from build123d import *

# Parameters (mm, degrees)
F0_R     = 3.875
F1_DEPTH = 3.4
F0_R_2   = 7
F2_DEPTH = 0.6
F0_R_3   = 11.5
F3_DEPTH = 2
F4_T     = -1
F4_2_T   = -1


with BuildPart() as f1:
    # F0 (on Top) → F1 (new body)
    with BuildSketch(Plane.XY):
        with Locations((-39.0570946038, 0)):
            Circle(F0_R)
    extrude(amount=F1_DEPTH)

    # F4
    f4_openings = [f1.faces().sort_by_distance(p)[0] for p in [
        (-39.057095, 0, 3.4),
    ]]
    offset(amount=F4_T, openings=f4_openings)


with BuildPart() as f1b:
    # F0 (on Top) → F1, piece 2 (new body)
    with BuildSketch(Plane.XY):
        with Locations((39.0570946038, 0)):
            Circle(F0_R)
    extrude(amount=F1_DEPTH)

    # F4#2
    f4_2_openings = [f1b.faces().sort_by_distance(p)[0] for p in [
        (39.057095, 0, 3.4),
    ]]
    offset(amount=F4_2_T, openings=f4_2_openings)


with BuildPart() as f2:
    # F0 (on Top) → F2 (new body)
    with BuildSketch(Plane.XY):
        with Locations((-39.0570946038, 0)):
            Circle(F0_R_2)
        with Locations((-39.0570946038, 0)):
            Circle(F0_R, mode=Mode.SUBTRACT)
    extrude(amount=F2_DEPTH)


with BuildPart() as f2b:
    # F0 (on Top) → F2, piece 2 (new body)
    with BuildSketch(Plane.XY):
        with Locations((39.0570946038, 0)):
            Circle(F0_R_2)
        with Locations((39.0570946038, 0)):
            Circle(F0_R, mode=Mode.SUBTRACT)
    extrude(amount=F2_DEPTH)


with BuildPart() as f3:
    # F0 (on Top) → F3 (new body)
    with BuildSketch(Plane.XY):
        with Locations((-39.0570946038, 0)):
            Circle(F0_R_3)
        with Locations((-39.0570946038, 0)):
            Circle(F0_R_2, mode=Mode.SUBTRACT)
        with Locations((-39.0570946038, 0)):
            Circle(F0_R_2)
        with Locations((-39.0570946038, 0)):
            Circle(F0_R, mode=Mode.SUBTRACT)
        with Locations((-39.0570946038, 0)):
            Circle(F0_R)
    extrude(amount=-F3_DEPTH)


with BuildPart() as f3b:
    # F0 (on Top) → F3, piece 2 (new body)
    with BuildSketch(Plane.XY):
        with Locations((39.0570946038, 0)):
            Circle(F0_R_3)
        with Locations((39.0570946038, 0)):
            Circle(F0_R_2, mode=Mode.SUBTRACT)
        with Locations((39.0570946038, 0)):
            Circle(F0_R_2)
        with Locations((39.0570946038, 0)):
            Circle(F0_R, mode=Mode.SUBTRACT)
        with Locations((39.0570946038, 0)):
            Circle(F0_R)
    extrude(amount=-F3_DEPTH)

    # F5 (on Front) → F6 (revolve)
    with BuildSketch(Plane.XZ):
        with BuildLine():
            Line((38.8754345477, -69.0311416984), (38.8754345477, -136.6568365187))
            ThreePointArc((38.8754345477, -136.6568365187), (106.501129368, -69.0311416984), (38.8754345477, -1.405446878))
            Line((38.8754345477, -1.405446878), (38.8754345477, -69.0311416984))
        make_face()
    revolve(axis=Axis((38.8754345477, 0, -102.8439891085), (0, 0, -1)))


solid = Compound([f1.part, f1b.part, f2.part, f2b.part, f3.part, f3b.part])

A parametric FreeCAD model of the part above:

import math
import FreeCAD as App
import Part
import Sketcher

V = App.Vector


def faces_at(feature, points):
    """Names of the faces that lie closest to the given points."""
    faces = feature.Shape.Faces
    near = lambda p: min(range(len(faces)), key=lambda i: faces[i].distToShape(Part.Vertex(*p))[0])
    return sorted({f"Face{near(p) + 1}" for p in points})

doc = App.newDocument("Part")
body = doc.addObject("PartDesign::Body", "Body")

# Sketch on XY plane
sketch1 = body.newObject("Sketcher::SketchObject", "Sketch")
sketch1.AttachmentSupport = (doc.getObject("XY_Plane"), [""])
sketch1.MapMode = "FlatFace"
sketch1.addGeometry(Part.Circle(V(-39.057095, 0, 0), V(0, 0, 1), 3.875), False)
sketch1.addConstraint(Sketcher.Constraint("PointOnObject", 0, 3, -1))
sketch1.addConstraint(Sketcher.Constraint("Diameter", 0, 7.75))
sketch1.addConstraint(Sketcher.Constraint("DistanceX", 0, 3, -1, 1, 39.057095))
pad1 = body.newObject("PartDesign::Pad", "Pad")
pad1.Profile = sketch1
pad1.Length = 3.4
doc.recompute()

thickness = body.newObject("PartDesign::Thickness", "Thickness")
thickness.Base = (pad1, faces_at(pad1, [(-39.057, 0, 3.4)]))
thickness.Value = 1
thickness.Reversed = True
thickness.Join = "Arc"
body2 = doc.addObject("PartDesign::Body", "Body001")

# Sketch on XY plane
sketch2 = body2.newObject("Sketcher::SketchObject", "Sketch001")
sketch2.AttachmentSupport = (doc.getObject("XY_Plane001"), [""])
sketch2.MapMode = "FlatFace"
sketch2.addGeometry(Part.Circle(V(39.057095, 0, 0), V(0, 0, 1), 3.875), False)
sketch2.addConstraint(Sketcher.Constraint("PointOnObject", 0, 3, -1))
sketch2.addConstraint(Sketcher.Constraint("Diameter", 0, 7.75))
sketch2.addConstraint(Sketcher.Constraint("DistanceX", -1, 1, 0, 3, 39.057095))
pad2 = body2.newObject("PartDesign::Pad", "Pad001")
pad2.Profile = sketch2
pad2.Length = 3.4
doc.recompute()

thickness2 = body2.newObject("PartDesign::Thickness", "Thickness001")
thickness2.Base = (pad2, faces_at(pad2, [(39.057, 0, 3.4)]))
thickness2.Value = 1
thickness2.Reversed = True
thickness2.Join = "Arc"
body3 = doc.addObject("PartDesign::Body", "Body002")

# Sketch on XY plane
sketch3 = body3.newObject("Sketcher::SketchObject", "Sketch002")
sketch3.AttachmentSupport = (doc.getObject("XY_Plane002"), [""])
sketch3.MapMode = "FlatFace"
sketch3.addGeometry(Part.Circle(V(-39.057095, 0, 0), V(0, 0, 1), 7), False)
sketch3.addGeometry(Part.Circle(V(-39.057095, 0, 0), V(0, 0, 1), 3.875), False)
sketch3.addConstraint(Sketcher.Constraint("Coincident", 1, 3, 0, 3))
sketch3.addConstraint(Sketcher.Constraint("PointOnObject", 0, 3, -1))
sketch3.addConstraint(Sketcher.Constraint("Diameter", 0, 14.0))
sketch3.addConstraint(Sketcher.Constraint("Diameter", 1, 7.75))
sketch3.addConstraint(Sketcher.Constraint("DistanceX", 0, 3, -1, 1, 39.057095))
pad3 = body3.newObject("PartDesign::Pad", "Pad002")
pad3.Profile = sketch3
pad3.Length = 0.6
body4 = doc.addObject("PartDesign::Body", "Body003")

# Sketch on XY plane
sketch4 = body4.newObject("Sketcher::SketchObject", "Sketch003")
sketch4.AttachmentSupport = (doc.getObject("XY_Plane003"), [""])
sketch4.MapMode = "FlatFace"
sketch4.addGeometry(Part.Circle(V(39.057095, 0, 0), V(0, 0, 1), 7), False)
sketch4.addGeometry(Part.Circle(V(39.057095, 0, 0), V(0, 0, 1), 3.875), False)
sketch4.addConstraint(Sketcher.Constraint("Coincident", 1, 3, 0, 3))
sketch4.addConstraint(Sketcher.Constraint("PointOnObject", 0, 3, -1))
sketch4.addConstraint(Sketcher.Constraint("Diameter", 0, 14.0))
sketch4.addConstraint(Sketcher.Constraint("Diameter", 1, 7.75))
sketch4.addConstraint(Sketcher.Constraint("DistanceX", -1, 1, 0, 3, 39.057095))
pad4 = body4.newObject("PartDesign::Pad", "Pad003")
pad4.Profile = sketch4
pad4.Length = 0.6
body5 = doc.addObject("PartDesign::Body", "Body004")

# Sketch on XY plane
sketch5 = body5.newObject("Sketcher::SketchObject", "Sketch004")
sketch5.AttachmentSupport = (doc.getObject("XY_Plane004"), [""])
sketch5.MapMode = "FlatFace"
sketch5.addGeometry(Part.Circle(V(-39.057095, 0, 0), V(0, 0, 1), 11.5), False)
sketch5.addConstraint(Sketcher.Constraint("PointOnObject", 0, 3, -1))
sketch5.addConstraint(Sketcher.Constraint("Diameter", 0, 23.0))
sketch5.addConstraint(Sketcher.Constraint("DistanceX", 0, 3, -1, 1, 39.057095))
pad5 = body5.newObject("PartDesign::Pad", "Pad004")
pad5.Profile = sketch5
pad5.Length = 2
pad5.Reversed = True
body6 = doc.addObject("PartDesign::Body", "Body005")

# Sketch on XY plane
sketch6 = body6.newObject("Sketcher::SketchObject", "Sketch005")
sketch6.AttachmentSupport = (doc.getObject("XY_Plane005"), [""])
sketch6.MapMode = "FlatFace"
sketch6.addGeometry(Part.Circle(V(39.057095, 0, 0), V(0, 0, 1), 11.5), False)
sketch6.addConstraint(Sketcher.Constraint("PointOnObject", 0, 3, -1))
sketch6.addConstraint(Sketcher.Constraint("Diameter", 0, 23.0))
sketch6.addConstraint(Sketcher.Constraint("DistanceX", -1, 1, 0, 3, 39.057095))
pad6 = body6.newObject("PartDesign::Pad", "Pad005")
pad6.Profile = sketch6
pad6.Length = 2
pad6.Reversed = True

# Sketch on XZ plane
sketch7 = body6.newObject("Sketcher::SketchObject", "Sketch006")
sketch7.AttachmentSupport = (doc.getObject("XZ_Plane005"), [""])
sketch7.MapMode = "FlatFace"
sketch7.addGeometry(Part.ArcOfCircle(Part.Circle(V(38.875435, -69.031142, 0), V(0, 0, 1), 67.625695), math.radians(-90), math.radians(90)), False)
sketch7.addGeometry(Part.LineSegment(V(38.875435, -1.405447, 0), V(38.875435, -136.656837, 0)), False)
sketch7.addGeometry(Part.LineSegment(V(38.875435, -1.405447, 0), V(38.875435, -136.656837, 0)), True)  # axis
sketch7.addConstraint(Sketcher.Constraint("Coincident", 0, 1, 1, 2))
sketch7.addConstraint(Sketcher.Constraint("Coincident", 1, 1, 0, 2))
sketch7.addConstraint(Sketcher.Constraint("Vertical", 1))
sketch7.addConstraint(Sketcher.Constraint("Vertical", 2))
sketch7.addConstraint(Sketcher.Constraint("Coincident", 2, 1, 1, 1))
sketch7.addConstraint(Sketcher.Constraint("Equal", 1, 2))
sketch7.addConstraint(Sketcher.Constraint("Radius", 0, 67.625695))
sketch7.addConstraint(Sketcher.Constraint("DistanceY", 0, 3, -1, 1, 69.031142))
sketch7.addConstraint(Sketcher.Constraint("DistanceX", -1, 1, 0, 3, 38.875435))
sketch7.addConstraint(Sketcher.Constraint("DistanceX", -1, 1, 0, 1, 38.875435))
revolution = body6.newObject("PartDesign::Revolution", "Revolution")
revolution.Profile = sketch7
revolution.ReferenceAxis = (sketch7, ["Axis0"])
revolution.Angle = 360

doc.recompute()
